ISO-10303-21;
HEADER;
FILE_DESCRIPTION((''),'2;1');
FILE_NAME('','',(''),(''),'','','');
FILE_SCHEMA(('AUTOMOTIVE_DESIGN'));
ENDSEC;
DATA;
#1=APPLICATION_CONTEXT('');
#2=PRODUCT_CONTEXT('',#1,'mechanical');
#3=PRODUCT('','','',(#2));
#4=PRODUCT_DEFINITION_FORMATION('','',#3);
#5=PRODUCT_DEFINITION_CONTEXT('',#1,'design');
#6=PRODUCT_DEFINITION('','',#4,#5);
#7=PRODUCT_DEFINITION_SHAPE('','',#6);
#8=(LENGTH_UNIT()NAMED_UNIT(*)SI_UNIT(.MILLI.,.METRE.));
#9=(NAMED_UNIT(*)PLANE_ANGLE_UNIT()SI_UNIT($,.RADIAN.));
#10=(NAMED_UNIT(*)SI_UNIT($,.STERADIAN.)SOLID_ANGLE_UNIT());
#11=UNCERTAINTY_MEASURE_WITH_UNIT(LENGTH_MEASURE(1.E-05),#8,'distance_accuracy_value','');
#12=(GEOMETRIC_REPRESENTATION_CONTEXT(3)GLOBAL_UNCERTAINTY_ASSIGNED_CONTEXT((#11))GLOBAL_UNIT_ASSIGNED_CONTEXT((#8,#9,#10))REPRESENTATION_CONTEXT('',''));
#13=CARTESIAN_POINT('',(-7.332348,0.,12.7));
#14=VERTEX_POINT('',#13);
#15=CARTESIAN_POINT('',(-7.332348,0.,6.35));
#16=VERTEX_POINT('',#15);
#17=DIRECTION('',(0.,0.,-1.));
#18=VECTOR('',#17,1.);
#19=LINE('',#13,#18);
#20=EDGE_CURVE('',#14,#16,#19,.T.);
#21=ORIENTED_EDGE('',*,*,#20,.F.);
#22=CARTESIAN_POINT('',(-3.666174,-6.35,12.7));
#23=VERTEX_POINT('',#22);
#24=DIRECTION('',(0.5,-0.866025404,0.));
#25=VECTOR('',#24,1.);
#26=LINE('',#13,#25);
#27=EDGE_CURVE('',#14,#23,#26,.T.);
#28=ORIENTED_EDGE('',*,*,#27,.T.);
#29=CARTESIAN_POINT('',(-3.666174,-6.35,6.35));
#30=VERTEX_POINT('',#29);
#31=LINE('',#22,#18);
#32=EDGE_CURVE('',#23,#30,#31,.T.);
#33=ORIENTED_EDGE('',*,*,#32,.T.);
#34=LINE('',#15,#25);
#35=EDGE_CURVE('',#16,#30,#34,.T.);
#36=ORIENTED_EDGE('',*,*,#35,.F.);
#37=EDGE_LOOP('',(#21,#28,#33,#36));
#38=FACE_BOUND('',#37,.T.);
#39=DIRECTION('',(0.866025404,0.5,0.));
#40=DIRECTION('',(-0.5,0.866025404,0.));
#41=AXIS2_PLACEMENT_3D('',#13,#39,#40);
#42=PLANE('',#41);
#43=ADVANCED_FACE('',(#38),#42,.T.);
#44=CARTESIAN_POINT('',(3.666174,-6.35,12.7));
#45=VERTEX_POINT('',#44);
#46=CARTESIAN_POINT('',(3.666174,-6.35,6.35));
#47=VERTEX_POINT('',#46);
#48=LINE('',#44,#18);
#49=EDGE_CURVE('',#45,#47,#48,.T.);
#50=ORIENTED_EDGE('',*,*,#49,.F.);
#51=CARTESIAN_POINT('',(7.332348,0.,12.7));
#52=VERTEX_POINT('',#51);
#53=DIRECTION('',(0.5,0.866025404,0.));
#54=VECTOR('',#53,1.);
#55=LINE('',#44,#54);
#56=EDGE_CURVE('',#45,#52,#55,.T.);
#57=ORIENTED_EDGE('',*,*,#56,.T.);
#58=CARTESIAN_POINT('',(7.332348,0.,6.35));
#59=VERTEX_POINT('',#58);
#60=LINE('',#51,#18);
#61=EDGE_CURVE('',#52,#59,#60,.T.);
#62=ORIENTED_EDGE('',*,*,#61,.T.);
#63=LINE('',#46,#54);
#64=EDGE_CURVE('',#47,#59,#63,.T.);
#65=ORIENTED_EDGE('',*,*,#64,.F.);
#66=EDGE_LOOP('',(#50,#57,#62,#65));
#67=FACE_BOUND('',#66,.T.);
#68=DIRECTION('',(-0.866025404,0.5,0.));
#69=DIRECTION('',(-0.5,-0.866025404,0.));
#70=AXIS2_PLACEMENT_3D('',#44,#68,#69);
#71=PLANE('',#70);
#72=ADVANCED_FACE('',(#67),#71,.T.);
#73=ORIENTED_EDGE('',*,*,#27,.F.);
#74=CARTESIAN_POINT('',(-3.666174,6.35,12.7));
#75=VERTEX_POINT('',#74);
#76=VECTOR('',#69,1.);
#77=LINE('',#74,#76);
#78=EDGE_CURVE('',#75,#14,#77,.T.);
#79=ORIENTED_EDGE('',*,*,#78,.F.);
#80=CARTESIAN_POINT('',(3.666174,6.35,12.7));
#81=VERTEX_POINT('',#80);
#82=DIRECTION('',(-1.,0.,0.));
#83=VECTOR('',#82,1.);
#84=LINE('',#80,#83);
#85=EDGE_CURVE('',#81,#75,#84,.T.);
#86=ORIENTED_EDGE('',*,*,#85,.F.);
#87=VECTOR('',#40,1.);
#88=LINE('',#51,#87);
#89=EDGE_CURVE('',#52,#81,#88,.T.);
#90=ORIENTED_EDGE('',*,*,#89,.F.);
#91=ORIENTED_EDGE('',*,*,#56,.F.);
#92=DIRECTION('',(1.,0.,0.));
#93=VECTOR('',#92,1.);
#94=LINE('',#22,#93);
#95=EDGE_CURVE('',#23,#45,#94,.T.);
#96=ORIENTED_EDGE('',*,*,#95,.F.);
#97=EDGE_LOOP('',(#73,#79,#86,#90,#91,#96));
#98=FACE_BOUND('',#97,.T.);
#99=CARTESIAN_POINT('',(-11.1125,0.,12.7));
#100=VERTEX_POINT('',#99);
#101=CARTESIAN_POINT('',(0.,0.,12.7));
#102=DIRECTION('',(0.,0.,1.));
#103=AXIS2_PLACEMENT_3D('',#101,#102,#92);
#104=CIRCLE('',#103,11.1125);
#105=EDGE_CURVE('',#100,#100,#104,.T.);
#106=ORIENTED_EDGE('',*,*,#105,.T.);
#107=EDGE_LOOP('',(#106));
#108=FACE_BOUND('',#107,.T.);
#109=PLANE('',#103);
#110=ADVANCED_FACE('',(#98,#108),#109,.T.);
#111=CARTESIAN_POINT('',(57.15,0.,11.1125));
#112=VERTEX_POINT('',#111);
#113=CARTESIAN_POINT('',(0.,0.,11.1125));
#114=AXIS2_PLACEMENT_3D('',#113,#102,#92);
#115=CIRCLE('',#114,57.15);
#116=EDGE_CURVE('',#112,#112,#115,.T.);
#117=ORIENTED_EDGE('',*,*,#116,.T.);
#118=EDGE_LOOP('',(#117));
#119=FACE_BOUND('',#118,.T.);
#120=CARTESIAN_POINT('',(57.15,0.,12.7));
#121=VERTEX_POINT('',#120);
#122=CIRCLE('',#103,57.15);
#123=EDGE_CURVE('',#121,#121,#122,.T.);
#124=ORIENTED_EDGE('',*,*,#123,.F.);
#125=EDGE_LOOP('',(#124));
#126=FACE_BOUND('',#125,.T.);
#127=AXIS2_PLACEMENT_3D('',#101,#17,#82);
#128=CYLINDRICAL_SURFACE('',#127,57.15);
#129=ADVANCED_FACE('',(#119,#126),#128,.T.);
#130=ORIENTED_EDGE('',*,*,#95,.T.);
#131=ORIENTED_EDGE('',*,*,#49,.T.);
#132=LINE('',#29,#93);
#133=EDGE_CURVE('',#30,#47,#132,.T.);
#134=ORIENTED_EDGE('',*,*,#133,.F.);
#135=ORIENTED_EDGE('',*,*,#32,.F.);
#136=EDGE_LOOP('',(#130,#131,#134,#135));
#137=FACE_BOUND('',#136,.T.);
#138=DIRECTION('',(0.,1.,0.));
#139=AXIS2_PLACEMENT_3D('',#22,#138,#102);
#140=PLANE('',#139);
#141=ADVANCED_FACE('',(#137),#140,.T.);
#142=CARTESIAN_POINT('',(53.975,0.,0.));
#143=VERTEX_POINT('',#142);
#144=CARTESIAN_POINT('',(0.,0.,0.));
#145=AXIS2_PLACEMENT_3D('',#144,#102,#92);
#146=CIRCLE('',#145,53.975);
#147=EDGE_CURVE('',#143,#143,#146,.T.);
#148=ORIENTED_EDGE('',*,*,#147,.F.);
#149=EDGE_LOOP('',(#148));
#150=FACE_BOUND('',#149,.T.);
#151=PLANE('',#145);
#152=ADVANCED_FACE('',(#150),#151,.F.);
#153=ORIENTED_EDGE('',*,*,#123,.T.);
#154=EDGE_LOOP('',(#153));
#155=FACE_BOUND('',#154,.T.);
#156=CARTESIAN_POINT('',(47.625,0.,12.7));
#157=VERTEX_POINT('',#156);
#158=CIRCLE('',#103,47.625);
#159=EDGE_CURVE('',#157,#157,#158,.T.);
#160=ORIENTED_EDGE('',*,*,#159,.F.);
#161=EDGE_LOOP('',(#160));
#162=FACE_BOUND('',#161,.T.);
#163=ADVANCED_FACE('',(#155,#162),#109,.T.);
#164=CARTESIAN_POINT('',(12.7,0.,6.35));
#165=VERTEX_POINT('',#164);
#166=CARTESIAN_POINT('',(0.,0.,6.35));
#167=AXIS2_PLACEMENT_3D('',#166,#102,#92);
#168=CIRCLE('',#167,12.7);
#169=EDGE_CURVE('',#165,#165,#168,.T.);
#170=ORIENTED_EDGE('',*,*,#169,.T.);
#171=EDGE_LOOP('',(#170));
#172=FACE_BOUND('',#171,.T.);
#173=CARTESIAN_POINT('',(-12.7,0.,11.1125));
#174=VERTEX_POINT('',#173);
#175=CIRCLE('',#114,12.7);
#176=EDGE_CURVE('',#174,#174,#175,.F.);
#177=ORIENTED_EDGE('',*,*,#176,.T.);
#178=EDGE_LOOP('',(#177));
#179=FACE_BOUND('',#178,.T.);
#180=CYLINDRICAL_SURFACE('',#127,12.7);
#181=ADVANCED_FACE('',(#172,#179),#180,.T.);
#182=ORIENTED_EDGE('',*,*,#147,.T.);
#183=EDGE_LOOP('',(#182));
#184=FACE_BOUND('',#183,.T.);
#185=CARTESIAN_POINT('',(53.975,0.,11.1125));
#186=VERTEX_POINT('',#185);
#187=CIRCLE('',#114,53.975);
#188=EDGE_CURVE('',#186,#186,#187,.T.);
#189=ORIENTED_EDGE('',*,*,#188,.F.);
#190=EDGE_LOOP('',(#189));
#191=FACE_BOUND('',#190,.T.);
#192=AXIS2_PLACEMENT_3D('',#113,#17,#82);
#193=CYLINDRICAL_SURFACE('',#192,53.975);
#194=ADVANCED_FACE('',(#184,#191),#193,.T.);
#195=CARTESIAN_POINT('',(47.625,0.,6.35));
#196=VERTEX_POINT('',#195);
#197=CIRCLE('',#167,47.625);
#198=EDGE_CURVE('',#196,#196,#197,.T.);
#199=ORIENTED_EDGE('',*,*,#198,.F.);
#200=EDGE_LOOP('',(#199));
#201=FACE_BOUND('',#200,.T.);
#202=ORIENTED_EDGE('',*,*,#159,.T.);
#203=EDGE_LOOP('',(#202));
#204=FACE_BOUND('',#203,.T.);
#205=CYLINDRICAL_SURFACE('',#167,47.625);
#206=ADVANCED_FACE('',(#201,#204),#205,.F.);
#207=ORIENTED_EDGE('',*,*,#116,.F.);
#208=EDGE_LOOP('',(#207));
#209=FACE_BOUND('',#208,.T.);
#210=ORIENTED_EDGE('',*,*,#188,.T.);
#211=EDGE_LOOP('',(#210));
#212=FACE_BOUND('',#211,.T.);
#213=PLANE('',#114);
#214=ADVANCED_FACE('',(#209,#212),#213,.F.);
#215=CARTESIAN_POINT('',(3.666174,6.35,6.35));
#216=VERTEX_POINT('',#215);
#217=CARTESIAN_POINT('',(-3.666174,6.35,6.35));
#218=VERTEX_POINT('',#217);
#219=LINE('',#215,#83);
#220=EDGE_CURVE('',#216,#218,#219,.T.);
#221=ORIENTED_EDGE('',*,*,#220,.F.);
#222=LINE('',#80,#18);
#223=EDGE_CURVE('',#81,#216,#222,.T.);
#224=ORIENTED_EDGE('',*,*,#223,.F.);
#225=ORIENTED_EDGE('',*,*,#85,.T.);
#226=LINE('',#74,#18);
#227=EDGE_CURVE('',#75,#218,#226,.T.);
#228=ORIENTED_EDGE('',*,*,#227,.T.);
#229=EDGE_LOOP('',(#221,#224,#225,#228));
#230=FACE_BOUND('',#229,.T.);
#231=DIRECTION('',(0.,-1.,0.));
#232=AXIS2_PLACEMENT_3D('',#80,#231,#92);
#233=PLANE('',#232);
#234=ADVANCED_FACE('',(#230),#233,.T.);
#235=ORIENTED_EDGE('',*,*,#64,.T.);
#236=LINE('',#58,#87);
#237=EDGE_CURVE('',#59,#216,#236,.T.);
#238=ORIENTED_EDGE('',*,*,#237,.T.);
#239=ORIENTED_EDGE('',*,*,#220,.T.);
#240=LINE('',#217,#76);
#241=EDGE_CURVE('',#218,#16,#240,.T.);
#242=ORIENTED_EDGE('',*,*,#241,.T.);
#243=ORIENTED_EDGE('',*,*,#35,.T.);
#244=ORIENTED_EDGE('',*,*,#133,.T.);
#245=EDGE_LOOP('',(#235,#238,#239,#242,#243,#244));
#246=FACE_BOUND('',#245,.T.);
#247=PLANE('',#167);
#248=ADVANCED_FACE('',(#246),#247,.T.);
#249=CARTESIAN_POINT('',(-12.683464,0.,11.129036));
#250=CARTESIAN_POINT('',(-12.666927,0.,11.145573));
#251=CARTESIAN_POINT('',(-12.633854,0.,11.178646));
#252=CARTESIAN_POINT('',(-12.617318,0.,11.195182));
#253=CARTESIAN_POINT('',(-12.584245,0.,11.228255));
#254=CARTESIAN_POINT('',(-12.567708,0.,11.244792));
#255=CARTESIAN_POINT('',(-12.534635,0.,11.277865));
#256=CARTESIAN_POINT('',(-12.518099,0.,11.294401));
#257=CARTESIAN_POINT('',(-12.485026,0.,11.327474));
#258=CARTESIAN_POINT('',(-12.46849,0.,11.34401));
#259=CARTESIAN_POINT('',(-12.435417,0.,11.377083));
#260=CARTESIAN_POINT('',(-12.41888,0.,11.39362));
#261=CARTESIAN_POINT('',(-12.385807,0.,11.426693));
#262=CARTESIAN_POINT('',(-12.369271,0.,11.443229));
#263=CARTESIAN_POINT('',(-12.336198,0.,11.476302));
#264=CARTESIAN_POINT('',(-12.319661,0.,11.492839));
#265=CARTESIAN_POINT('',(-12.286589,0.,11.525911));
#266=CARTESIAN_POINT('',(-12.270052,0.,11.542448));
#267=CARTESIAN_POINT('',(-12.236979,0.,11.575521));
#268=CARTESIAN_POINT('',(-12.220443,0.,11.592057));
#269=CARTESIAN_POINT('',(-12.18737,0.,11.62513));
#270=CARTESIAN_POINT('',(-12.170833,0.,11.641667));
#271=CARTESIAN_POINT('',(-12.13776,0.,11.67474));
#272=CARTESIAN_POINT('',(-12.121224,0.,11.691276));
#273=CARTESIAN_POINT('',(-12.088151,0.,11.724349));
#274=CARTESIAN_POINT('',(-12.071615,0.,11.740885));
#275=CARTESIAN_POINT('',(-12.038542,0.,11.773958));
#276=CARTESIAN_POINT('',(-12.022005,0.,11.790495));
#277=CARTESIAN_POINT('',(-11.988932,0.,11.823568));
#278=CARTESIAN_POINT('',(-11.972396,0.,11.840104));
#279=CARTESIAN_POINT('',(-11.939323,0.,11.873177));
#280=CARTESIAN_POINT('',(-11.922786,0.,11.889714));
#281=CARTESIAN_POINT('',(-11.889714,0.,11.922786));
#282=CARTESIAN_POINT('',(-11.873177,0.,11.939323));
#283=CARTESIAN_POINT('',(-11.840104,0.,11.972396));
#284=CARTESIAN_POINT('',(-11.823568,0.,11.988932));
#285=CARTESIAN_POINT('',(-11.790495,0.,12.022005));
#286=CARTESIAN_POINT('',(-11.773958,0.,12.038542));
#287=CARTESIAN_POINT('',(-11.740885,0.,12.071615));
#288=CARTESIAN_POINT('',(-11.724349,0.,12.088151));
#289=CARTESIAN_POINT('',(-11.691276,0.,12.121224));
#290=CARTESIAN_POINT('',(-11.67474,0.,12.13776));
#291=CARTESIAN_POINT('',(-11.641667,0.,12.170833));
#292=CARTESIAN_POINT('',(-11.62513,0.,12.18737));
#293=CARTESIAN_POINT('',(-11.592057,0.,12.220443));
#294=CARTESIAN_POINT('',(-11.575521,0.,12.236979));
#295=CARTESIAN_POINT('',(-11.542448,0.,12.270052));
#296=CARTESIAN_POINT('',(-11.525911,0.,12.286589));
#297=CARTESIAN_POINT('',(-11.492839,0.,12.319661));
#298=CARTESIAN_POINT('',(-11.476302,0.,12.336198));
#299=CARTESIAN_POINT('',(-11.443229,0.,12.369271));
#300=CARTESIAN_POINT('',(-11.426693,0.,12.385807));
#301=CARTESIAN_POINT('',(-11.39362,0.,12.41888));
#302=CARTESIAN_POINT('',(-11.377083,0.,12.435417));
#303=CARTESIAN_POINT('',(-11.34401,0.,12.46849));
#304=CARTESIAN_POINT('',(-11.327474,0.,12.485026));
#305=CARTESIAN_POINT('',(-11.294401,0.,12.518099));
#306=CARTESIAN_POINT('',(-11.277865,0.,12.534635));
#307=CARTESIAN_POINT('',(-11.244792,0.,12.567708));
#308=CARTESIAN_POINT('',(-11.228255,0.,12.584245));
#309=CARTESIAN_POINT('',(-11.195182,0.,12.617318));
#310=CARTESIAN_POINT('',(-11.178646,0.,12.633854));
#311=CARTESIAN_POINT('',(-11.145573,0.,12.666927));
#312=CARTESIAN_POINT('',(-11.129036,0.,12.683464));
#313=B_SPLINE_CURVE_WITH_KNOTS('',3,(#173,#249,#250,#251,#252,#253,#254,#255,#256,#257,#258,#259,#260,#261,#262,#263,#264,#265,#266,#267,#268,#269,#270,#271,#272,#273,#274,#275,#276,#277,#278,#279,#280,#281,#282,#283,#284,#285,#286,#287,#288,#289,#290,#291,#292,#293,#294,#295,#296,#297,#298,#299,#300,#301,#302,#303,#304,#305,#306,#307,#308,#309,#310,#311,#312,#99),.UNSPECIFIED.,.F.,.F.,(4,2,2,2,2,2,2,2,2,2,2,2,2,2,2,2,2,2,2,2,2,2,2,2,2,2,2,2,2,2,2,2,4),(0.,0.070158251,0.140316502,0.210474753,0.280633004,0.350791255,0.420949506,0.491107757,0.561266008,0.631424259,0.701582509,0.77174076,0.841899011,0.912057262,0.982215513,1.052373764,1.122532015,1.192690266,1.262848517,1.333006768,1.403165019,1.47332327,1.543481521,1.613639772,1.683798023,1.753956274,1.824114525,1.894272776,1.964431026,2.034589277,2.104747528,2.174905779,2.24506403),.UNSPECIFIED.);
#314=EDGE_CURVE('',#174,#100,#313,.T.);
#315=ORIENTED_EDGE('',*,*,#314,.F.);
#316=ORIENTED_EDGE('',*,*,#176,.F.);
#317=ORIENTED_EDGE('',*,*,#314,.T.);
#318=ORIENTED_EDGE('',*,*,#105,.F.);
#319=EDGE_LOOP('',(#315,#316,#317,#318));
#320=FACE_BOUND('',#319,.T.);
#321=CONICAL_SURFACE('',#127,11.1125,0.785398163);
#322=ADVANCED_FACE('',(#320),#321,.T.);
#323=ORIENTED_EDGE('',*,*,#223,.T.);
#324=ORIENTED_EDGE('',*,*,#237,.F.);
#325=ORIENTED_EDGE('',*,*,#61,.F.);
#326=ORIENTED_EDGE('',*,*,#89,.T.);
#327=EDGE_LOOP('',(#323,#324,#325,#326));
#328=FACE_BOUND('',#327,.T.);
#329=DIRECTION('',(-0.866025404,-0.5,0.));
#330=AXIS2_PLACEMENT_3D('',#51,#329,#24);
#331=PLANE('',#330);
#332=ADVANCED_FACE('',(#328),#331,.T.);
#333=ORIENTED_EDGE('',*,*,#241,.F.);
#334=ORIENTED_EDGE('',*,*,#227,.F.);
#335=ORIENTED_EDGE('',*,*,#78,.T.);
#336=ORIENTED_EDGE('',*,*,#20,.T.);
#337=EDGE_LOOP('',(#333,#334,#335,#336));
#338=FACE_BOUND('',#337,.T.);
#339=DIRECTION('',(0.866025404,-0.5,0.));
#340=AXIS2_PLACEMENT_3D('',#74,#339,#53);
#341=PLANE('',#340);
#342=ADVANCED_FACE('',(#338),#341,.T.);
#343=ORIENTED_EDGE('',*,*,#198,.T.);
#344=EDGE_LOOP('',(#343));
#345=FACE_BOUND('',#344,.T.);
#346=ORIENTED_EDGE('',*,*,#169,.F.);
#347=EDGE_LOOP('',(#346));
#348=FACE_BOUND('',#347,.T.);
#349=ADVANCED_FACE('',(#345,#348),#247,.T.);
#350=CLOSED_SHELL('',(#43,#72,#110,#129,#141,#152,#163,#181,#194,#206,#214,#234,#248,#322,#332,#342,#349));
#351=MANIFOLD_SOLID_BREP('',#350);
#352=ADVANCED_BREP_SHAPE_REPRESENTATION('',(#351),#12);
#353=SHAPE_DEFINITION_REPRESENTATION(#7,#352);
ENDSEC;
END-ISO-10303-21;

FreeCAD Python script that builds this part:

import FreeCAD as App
import Part
import Sketcher

V = App.Vector
Q = App.Units.Quantity


def edges_at(feature, points):
    """Names of the edges that pass closest to the given points."""
    edges = feature.Shape.Edges
    near = lambda p: min(range(len(edges)), key=lambda i: edges[i].distToShape(Part.Vertex(*p))[0])
    return sorted({f"Edge{near(p) + 1}" for p in points})

doc = App.newDocument("Part")
body = doc.addObject("PartDesign::Body", "Body")

sketch1 = body.newObject("Sketcher::SketchObject", "Sketch")
sketch1.AttachmentSupport = (doc.getObject("XY_Plane"), [""])
sketch1.MapMode = "FlatFace"
sketch1.addGeometry(Part.Circle(V(0, 0, 0), V(0, 0, 1), 54), False)
sketch1.addConstraint([
    Sketcher.Constraint("Coincident", 0, 3, -1, 1),
    Sketcher.Constraint("Diameter", 0, Q("4.25 in")),
])
pad1 = body.newObject("PartDesign::Pad", "Pad")
pad1.Profile = sketch1
pad1.Length = Q("0.4375 in")

sketch2 = body.newObject("Sketcher::SketchObject", "Sketch001")
sketch2.AttachmentSupport = (doc.getObject("XY_Plane"), [""])
sketch2.MapMode = "FlatFace"
sketch2.AttachmentOffset = App.Placement(V(0, 0, 0.4375 * 25.4), App.Rotation())
sketch2.addGeometry(Part.Circle(V(0, 0, 0), V(0, 0, 1), 57), False)
sketch2.addConstraint([
    Sketcher.Constraint("Coincident", 0, 3, -1, 1),
    Sketcher.Constraint("Diameter", 0, Q("4.5 in")),
])
pad2 = body.newObject("PartDesign::Pad", "Pad001")
pad2.Profile = sketch2
pad2.Length = Q("0.0625 in")

sketch3 = body.newObject("Sketcher::SketchObject", "Sketch002")
sketch3.AttachmentSupport = (doc.getObject("XY_Plane"), [""])
sketch3.MapMode = "FlatFace"
sketch3.AttachmentOffset = App.Placement(V(0, 0, 0.5 * 25.4), App.Rotation())
sketch3.addGeometry(Part.Circle(V(0, 0, 0), V(0, 0, 1), 48), False)
sketch3.addConstraint([
    Sketcher.Constraint("Coincident", 0, 3, -1, 1),
    Sketcher.Constraint("Diameter", 0, Q("3.75 in")),
])
pocket1 = body.newObject("PartDesign::Pocket", "Pocket")
pocket1.Profile = sketch3
pocket1.Length = Q("0.25 in")

sketch4 = body.newObject("Sketcher::SketchObject", "Sketch003")
sketch4.AttachmentSupport = (doc.getObject("XY_Plane"), [""])
sketch4.MapMode = "FlatFace"
sketch4.AttachmentOffset = App.Placement(V(0, 0, 0.25 * 25.4), App.Rotation())
sketch4.addGeometry([
    Part.Circle(V(0, 0, 0), V(0, 0, 1), 13),
    Part.LineSegment(V(4, 6, 0), V(7, 0, 0)),
    Part.LineSegment(V(7, 0, 0), V(4, -6, 0)),
    Part.LineSegment(V(4, -6, 0), V(-4, -6, 0)),
    Part.LineSegment(V(-4, -6, 0), V(-7, 0, 0)),
    Part.LineSegment(V(-7, 0, 0), V(-4, 6, 0)),
    Part.LineSegment(V(-4, 6, 0), V(4, 6, 0)),
], False)
sketch4.addConstraint([
    Sketcher.Constraint("Coincident", 1, 2, 2, 1),
    Sketcher.Constraint("Coincident", 2, 2, 3, 1),
    Sketcher.Constraint("Coincident", 3, 2, 4, 1),
    Sketcher.Constraint("Coincident", 4, 2, 5, 1),
    Sketcher.Constraint("Coincident", 5, 2, 6, 1),
    Sketcher.Constraint("Coincident", 6, 2, 1, 1),
    Sketcher.Constraint("Horizontal", 3),
    Sketcher.Constraint("Horizontal", 6),
    Sketcher.Constraint("Coincident", 0, 3, -1, 1),
    Sketcher.Constraint("Symmetric", 1, 2, 4, 2, -1, 1),
    Sketcher.Constraint("Symmetric", 2, 2, 5, 2, -1, 1),
    Sketcher.Constraint("PointOnObject", 1, 2, -1),
    Sketcher.Constraint("Parallel", 1, 4),
    Sketcher.Constraint("Vertical", 3, 2, 5, 2),
    Sketcher.Constraint("Diameter", 0, Q("1 in")),
    Sketcher.Constraint("Angle", 1, Q("-60 deg")),
    Sketcher.Constraint("DistanceY", 3, 2, 5, 2, Q("0.5 in")),
    Sketcher.Constraint("DistanceX", 3, 2, 3, 1, Q("7.332348 mm")),
])
pad3 = body.newObject("PartDesign::Pad", "Pad002")
pad3.Profile = sketch4
pad3.Length = Q("0.25 in")
doc.recompute()

chamfer = body.newObject("PartDesign::Chamfer", "Chamfer")
chamfer.Base = (pad3, edges_at(pad3, [(-12.7, 0, 12.7)]))
chamfer.Size = Q("0.0625 in")

doc.recompute()
